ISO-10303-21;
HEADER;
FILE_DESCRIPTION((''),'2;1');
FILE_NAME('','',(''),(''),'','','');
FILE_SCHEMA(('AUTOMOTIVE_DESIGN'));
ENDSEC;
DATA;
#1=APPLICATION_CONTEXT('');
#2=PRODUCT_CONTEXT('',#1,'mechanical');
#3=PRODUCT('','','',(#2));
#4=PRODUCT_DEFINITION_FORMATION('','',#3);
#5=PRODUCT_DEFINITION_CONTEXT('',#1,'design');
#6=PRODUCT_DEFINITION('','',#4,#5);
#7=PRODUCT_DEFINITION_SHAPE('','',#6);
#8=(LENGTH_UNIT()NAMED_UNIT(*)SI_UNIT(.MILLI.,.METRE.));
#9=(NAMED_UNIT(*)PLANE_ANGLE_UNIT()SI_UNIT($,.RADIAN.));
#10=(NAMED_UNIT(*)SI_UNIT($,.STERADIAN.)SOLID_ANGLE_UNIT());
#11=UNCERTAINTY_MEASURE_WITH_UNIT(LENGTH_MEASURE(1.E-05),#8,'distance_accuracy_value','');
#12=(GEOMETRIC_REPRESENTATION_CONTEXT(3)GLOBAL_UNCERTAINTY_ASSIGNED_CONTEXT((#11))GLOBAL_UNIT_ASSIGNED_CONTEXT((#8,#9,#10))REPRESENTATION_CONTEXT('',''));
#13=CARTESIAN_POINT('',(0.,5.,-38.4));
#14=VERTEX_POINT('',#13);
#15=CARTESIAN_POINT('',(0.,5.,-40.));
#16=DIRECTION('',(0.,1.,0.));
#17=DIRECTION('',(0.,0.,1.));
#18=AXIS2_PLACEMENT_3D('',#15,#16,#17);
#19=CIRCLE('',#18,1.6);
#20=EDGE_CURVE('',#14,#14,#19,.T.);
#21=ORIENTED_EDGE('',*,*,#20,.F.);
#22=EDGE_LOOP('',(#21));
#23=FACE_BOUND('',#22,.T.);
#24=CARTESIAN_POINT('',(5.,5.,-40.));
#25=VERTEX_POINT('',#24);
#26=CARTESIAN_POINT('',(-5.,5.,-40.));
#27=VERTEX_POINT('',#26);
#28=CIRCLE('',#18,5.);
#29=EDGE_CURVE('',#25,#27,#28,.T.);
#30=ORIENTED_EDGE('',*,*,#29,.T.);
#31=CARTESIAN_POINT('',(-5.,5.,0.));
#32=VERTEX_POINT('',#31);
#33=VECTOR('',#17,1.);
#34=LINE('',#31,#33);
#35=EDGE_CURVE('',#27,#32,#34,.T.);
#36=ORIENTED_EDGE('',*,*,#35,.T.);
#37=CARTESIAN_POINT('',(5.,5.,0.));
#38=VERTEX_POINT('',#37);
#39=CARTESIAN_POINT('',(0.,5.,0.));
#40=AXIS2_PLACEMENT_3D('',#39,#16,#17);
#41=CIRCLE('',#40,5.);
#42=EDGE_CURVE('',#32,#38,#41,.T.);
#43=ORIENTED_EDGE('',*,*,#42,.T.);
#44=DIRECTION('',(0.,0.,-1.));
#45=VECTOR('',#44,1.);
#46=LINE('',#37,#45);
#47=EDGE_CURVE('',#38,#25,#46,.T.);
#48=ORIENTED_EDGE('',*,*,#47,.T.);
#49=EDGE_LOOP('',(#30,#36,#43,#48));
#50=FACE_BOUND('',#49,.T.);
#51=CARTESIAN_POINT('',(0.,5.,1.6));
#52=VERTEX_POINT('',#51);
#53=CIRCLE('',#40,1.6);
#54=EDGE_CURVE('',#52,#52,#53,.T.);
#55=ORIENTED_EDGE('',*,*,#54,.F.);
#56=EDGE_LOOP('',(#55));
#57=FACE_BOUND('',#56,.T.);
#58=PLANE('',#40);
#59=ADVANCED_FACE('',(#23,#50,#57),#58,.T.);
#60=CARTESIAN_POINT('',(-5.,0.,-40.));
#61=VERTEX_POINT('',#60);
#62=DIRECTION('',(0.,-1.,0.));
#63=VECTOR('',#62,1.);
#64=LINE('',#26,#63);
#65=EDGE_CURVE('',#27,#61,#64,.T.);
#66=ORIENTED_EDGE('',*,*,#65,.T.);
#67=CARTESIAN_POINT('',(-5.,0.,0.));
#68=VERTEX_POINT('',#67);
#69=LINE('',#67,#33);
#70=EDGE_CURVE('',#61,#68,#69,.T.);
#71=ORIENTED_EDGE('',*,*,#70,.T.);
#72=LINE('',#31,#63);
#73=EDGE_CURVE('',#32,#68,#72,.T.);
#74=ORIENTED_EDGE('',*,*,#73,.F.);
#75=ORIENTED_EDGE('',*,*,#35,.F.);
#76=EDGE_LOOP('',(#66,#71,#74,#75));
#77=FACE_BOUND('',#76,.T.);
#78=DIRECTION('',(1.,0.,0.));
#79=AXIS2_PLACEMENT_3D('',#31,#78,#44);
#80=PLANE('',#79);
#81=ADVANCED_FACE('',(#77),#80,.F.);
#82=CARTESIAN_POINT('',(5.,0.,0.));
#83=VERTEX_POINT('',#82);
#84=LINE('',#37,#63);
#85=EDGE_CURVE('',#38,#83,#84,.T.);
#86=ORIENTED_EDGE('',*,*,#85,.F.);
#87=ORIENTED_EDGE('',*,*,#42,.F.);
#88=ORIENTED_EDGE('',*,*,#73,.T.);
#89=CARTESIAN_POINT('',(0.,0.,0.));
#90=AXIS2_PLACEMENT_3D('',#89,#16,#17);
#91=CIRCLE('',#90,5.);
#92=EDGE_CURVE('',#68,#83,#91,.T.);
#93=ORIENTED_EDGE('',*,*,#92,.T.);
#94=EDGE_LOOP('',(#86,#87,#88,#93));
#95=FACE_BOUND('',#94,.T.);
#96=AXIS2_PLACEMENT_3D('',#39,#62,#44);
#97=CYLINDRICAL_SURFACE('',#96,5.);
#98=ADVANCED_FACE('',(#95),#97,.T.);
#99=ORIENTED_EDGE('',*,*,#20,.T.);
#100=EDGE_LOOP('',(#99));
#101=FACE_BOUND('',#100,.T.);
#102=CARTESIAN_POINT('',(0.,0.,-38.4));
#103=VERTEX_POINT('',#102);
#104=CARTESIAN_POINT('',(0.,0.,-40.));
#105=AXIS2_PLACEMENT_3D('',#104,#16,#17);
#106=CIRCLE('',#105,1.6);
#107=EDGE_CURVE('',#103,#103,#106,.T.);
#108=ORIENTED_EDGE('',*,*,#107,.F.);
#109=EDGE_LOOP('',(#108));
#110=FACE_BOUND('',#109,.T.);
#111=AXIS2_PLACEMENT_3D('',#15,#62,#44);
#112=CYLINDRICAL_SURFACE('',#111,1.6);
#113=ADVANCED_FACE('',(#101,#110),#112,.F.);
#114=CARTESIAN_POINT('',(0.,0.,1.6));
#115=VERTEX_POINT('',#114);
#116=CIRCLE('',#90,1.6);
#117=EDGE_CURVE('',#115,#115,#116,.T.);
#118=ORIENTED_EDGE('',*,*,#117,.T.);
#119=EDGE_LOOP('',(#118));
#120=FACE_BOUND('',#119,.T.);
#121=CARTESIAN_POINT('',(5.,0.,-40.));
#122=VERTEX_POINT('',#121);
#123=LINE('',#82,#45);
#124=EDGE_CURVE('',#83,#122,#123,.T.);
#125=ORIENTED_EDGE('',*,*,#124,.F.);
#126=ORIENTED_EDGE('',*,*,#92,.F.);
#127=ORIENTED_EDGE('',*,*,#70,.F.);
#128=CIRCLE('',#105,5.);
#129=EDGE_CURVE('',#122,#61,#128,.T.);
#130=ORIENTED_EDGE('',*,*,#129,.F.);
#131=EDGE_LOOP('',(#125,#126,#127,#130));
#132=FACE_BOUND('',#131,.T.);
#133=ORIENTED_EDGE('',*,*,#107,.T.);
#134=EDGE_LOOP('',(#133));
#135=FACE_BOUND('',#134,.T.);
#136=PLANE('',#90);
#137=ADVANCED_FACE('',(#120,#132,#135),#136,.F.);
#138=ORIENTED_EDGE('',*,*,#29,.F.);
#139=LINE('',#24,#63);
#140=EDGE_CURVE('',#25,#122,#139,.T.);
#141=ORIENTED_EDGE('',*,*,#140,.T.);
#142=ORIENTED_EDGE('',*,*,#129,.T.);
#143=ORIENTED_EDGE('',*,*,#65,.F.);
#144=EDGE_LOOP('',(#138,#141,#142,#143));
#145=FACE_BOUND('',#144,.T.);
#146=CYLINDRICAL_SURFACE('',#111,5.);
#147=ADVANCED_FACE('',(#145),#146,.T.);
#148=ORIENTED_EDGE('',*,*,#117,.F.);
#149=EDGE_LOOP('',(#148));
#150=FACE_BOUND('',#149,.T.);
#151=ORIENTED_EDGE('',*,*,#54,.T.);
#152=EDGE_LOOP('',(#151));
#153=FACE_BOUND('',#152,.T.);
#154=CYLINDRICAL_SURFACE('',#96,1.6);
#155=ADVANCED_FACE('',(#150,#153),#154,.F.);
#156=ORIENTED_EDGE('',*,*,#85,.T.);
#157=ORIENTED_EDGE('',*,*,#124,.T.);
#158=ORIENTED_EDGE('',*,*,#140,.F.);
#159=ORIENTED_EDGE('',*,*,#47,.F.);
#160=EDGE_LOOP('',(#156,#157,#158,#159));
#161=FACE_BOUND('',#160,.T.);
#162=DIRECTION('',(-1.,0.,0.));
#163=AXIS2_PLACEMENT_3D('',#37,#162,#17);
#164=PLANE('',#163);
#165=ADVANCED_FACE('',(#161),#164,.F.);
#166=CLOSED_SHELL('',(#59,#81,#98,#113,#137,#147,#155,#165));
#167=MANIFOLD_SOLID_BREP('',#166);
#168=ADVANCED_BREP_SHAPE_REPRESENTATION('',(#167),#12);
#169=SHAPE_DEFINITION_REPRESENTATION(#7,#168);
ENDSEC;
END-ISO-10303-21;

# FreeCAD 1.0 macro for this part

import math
import FreeCAD as App
import Part
import Sketcher
from FreeCAD import Vector
Q = App.Units.Quantity

doc = App.newDocument("Part")
params = doc.addObject("Spreadsheet::Sheet", "Params")
for row, (alias, value) in enumerate([
    ("sketch1_radius", "5 mm"),
    ("sketch1_diameter", "3.2 mm"),
    ("sketch1_height", "40 mm"),
    ("pad1_length", "5 mm"),
], start=1):
    params.set(f"A{row}", alias)
    params.set(f"B{row}", "=" + value)
    params.setAlias(f"B{row}", alias)

body = doc.addObject("PartDesign::Body", "Body")

# Sketch on XZ plane
sketch1 = body.newObject("Sketcher::SketchObject", "Sketch")
sketch1.AttachmentSupport = (doc.getObject("XZ_Plane"), [""])
sketch1.MapMode = "FlatFace"
sketch1.addGeometry(Part.LineSegment(Vector(-5, -40, 0), Vector(-5, 0, 0)), False)
sketch1.addGeometry(Part.ArcOfCircle(Part.Circle(Vector(0, 0, 0), Vector(0, 0, 1), 5), math.radians(0), math.radians(180)), False)
sketch1.addGeometry(Part.LineSegment(Vector(5, 0, 0), Vector(5, -40, 0)), False)
sketch1.addGeometry(Part.ArcOfCircle(Part.Circle(Vector(0, -40, 0), Vector(0, 0, 1), 5), math.radians(180), math.radians(360)), False)
sketch1.addGeometry(Part.Circle(Vector(0, 0, 0), Vector(0, 0, 1), 1.6), False)
sketch1.addGeometry(Part.Circle(Vector(0, -40, 0), Vector(0, 0, 1), 1.6), False)
sketch1.addConstraint(Sketcher.Constraint("Tangent", 0, 2, 1, 2))
sketch1.addConstraint(Sketcher.Constraint("Tangent", 1, 1, 2, 1))
sketch1.addConstraint(Sketcher.Constraint("Tangent", 2, 2, 3, 2))
sketch1.addConstraint(Sketcher.Constraint("Tangent", 3, 1, 0, 1))
sketch1.addConstraint(Sketcher.Constraint("Vertical", 0))
sketch1.addConstraint(Sketcher.Constraint("Vertical", 2))
sketch1.addConstraint(Sketcher.Constraint("Coincident", 1, 3, -1, 1))
sketch1.addConstraint(Sketcher.Constraint("Coincident", 4, 3, -1, 1))
sketch1.addConstraint(Sketcher.Constraint("Coincident", 5, 3, 3, 3))
sketch1.addConstraint(Sketcher.Constraint("Equal", 4, 5))
sketch1.addConstraint(Sketcher.Constraint("Radius", 1, Q("5 mm")))
sketch1.addConstraint(Sketcher.Constraint("Diameter", 4, Q("3.2 mm")))
sketch1.addConstraint(Sketcher.Constraint("DistanceY", 0, 1, 0, 2, Q("40 mm")))
sketch1.setExpression("Constraints[10]", "Params.sketch1_radius")
sketch1.setExpression("Constraints[11]", "Params.sketch1_diameter")
sketch1.setExpression("Constraints[12]", "Params.sketch1_height")
pad1 = body.newObject("PartDesign::Pad", "Pad")
pad1.Profile = sketch1
pad1.setExpression("Length", "Params.pad1_length")
pad1.Reversed = True

doc.recompute()
